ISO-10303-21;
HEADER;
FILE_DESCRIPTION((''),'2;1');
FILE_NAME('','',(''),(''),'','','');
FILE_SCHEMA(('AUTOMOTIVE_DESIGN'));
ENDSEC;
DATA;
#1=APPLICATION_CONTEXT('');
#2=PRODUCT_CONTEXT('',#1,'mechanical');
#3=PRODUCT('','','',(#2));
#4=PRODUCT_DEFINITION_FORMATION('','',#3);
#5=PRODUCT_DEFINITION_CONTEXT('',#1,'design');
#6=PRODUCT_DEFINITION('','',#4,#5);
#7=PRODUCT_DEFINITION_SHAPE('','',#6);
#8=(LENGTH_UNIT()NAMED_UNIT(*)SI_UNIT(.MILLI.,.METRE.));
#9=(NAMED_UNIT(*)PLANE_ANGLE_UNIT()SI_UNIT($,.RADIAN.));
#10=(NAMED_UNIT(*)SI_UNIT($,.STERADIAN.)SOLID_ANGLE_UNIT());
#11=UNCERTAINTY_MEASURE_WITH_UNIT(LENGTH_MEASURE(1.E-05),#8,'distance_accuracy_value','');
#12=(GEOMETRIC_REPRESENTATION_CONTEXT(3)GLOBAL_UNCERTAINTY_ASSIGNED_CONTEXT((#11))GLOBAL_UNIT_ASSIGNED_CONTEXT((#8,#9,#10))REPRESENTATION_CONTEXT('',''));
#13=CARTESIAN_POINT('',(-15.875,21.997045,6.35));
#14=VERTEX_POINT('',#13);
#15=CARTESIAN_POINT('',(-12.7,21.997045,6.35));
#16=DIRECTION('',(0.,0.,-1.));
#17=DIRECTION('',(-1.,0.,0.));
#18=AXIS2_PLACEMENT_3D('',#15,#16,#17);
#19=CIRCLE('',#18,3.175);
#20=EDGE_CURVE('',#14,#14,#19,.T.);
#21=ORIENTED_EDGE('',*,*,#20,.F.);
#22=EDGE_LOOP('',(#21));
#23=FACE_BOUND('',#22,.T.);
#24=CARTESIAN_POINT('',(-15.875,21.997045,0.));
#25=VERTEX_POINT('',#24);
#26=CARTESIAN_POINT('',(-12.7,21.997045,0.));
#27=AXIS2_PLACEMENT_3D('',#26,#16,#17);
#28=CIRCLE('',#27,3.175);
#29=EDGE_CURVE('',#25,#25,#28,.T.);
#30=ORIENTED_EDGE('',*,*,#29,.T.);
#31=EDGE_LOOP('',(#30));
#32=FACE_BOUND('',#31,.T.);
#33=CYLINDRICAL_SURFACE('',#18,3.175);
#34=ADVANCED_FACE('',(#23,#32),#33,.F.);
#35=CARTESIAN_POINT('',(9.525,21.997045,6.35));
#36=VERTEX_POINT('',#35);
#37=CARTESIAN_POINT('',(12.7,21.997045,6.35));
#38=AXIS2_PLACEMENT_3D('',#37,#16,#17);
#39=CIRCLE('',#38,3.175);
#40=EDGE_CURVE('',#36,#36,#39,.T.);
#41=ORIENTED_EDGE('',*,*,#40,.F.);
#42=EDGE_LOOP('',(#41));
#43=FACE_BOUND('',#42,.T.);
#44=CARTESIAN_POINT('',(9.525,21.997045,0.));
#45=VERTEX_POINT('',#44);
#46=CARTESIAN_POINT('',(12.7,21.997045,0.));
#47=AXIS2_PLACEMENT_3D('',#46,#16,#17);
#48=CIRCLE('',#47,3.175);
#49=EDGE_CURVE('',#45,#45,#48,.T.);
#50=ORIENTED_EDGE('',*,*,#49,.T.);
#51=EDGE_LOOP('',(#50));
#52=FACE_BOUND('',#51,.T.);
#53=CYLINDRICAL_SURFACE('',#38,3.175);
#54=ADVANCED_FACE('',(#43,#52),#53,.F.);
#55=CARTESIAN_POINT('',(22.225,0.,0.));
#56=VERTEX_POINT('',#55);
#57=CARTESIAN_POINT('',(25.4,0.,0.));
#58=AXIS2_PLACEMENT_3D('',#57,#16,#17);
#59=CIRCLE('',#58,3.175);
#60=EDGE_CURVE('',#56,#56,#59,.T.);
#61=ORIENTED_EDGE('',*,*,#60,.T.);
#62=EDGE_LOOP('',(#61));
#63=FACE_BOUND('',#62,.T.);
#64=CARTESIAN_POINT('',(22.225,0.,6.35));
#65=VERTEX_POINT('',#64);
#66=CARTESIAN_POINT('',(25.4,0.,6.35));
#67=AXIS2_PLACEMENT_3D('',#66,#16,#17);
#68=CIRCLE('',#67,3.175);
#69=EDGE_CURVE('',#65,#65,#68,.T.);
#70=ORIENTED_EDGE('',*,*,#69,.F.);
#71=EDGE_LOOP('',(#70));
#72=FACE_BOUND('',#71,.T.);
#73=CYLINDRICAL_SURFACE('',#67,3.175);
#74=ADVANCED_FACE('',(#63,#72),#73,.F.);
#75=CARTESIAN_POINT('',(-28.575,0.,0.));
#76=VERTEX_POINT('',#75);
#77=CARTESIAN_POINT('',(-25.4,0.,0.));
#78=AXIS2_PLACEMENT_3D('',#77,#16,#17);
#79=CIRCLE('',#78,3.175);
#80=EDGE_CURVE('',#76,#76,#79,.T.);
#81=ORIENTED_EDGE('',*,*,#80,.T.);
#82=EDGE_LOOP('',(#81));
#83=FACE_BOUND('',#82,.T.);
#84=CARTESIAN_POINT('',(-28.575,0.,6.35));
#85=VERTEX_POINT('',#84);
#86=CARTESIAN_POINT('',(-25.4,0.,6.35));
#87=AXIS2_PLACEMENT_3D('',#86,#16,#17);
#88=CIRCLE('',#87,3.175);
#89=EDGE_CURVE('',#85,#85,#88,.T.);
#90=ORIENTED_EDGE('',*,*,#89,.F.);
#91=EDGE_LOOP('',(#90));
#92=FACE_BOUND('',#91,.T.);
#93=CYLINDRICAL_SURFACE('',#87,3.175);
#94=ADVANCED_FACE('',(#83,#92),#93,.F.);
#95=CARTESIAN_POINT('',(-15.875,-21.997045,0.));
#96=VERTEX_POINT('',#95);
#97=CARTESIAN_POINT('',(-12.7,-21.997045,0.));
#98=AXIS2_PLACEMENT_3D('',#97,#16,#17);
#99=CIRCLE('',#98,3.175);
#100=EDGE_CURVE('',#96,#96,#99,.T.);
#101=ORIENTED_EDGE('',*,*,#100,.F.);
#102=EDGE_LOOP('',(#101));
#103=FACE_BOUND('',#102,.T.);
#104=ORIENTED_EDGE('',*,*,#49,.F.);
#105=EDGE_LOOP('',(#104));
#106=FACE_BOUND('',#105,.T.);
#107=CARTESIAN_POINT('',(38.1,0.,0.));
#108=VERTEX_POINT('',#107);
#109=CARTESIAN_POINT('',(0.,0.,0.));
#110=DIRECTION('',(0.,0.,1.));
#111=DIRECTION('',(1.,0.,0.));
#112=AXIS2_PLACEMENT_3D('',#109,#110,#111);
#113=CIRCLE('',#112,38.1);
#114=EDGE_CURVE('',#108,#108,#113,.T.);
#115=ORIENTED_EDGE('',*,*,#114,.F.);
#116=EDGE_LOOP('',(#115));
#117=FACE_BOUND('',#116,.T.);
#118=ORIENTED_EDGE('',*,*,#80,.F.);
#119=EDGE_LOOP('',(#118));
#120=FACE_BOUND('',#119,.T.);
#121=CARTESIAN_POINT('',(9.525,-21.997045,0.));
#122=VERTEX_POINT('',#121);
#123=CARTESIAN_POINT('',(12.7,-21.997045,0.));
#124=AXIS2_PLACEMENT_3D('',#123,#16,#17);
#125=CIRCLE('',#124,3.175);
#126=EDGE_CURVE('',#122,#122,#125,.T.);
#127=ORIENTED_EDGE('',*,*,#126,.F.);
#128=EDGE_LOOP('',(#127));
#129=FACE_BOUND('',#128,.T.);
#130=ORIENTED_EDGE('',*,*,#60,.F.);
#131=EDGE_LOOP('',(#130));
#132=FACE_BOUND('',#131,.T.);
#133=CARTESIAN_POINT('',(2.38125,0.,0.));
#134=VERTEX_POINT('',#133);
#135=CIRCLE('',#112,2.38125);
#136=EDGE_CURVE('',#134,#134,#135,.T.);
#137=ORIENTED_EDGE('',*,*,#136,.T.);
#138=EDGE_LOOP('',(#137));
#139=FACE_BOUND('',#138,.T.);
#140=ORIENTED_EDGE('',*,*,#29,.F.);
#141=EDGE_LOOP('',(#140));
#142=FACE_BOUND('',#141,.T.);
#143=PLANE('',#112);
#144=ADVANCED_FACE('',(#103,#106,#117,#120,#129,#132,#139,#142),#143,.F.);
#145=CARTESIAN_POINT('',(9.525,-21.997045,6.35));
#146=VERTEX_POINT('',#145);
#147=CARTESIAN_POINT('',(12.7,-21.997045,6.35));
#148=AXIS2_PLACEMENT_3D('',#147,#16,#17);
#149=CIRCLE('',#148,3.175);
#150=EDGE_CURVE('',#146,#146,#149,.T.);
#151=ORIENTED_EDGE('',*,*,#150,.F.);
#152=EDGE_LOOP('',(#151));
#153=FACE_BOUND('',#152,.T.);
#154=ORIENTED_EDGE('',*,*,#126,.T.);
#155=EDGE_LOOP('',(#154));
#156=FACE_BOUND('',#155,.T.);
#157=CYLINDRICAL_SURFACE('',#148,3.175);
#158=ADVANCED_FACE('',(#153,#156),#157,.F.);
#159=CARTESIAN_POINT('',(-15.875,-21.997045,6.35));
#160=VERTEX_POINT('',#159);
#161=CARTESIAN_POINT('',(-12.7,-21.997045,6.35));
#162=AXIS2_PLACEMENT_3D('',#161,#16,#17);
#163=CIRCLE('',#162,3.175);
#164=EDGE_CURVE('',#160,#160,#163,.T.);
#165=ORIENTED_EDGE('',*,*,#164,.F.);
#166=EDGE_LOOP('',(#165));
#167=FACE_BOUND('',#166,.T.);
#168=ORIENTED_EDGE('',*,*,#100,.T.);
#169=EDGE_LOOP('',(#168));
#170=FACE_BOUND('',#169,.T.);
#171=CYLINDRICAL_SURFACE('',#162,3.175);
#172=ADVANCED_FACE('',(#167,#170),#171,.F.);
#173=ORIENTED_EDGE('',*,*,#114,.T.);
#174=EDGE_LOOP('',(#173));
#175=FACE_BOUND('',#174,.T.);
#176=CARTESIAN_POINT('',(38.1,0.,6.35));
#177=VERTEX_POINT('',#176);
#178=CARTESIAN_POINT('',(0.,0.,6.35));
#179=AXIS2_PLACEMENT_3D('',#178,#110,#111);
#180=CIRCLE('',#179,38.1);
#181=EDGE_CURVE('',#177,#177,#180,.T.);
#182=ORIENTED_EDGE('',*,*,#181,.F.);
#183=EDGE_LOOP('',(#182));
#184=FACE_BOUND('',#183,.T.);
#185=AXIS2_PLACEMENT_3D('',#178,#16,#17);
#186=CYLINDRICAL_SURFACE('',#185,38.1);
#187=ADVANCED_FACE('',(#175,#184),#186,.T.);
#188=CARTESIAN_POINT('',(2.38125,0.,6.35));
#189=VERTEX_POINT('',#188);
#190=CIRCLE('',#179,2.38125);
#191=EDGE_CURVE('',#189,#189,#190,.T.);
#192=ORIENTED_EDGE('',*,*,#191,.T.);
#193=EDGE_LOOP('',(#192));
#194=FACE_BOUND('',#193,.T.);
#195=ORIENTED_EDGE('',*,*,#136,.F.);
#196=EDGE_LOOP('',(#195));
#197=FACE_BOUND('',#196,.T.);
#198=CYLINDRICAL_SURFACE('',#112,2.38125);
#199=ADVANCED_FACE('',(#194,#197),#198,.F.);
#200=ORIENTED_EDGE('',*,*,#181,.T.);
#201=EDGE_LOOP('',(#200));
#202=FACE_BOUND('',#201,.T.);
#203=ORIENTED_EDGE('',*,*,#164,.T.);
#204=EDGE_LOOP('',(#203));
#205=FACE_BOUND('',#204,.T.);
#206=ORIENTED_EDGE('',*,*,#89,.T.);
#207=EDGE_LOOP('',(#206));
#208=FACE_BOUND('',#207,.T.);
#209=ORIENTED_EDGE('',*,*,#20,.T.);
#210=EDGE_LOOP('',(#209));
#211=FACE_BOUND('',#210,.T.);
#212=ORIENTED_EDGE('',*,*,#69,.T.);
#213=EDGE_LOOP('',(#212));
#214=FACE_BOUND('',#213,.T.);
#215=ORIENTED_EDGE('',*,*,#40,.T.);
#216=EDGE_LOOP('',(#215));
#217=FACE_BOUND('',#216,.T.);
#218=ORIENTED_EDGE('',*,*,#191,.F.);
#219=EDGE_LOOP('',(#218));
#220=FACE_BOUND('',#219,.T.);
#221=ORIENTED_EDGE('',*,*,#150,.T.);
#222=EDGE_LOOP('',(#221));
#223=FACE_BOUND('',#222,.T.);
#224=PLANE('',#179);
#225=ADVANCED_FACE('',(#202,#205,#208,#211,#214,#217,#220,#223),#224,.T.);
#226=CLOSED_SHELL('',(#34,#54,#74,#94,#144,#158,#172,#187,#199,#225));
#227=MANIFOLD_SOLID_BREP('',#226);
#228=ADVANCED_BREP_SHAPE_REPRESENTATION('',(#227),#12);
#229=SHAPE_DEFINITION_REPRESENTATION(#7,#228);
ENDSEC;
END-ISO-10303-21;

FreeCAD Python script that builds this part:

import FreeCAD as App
import Part
import Sketcher
Q = App.Units.Quantity

doc = App.newDocument("Part")
body = doc.addObject("PartDesign::Body", "Body")

sketch1 = body.newObject("Sketcher::SketchObject", "Sketch")
sketch1.AttachmentSupport = (doc.getObject("XY_Plane"), [""])
sketch1.MapMode = "FlatFace"
sketch1.addGeometry(Part.Circle(App.Vector(0, 0, 0), App.Vector(0, 0, 1), 38), False)
sketch1.addConstraint(Sketcher.Constraint("Coincident", 0, 3, -1, 1))
sketch1.addConstraint(Sketcher.Constraint("Diameter", 0, Q("3 in")))
pad1 = body.newObject("PartDesign::Pad", "Pad")
pad1.Profile = sketch1
pad1.Length = Q("0.25 in")

sketch2 = body.newObject("Sketcher::SketchObject", "Sketch001")
sketch2.AttachmentSupport = (doc.getObject("XY_Plane"), [""])
sketch2.MapMode = "FlatFace"
sketch2.addGeometry(Part.Circle(App.Vector(25.4, 0, 0), App.Vector(0, 0, 1), 3.2), False)
sketch2.addGeometry(Part.Circle(App.Vector(12.7, 22, 0), App.Vector(0, 0, 1), 3.2), False)
sketch2.addGeometry(Part.Circle(App.Vector(-12.7, 22, 0), App.Vector(0, 0, 1), 3.2), False)
sketch2.addGeometry(Part.Circle(App.Vector(-25.4, 0, 0), App.Vector(0, 0, 1), 3.2), False)
sketch2.addGeometry(Part.Circle(App.Vector(-12.7, -22, 0), App.Vector(0, 0, 1), 3.2), False)
sketch2.addGeometry(Part.Circle(App.Vector(12.7, -22, 0), App.Vector(0, 0, 1), 3.2), False)
sketch2.addConstraint(Sketcher.Constraint("Equal", 0, 1))
sketch2.addConstraint(Sketcher.Constraint("Equal", 1, 2))
sketch2.addConstraint(Sketcher.Constraint("Equal", 2, 3))
sketch2.addConstraint(Sketcher.Constraint("Equal", 3, 4))
sketch2.addConstraint(Sketcher.Constraint("Equal", 4, 5))
sketch2.addConstraint(Sketcher.Constraint("Symmetric", 0, 3, 3, 3, -1, 1))
sketch2.addConstraint(Sketcher.Constraint("Symmetric", 1, 3, 4, 3, -1, 1))
sketch2.addConstraint(Sketcher.Constraint("Symmetric", 2, 3, 5, 3, -1, 1))
sketch2.addConstraint(Sketcher.Constraint("Symmetric", 1, 3, 2, 3, -2))
sketch2.addConstraint(Sketcher.Constraint("PointOnObject", 0, 3, -1))
sketch2.addConstraint(Sketcher.Constraint("Diameter", 0, Q("0.25 in")))
sketch2.addConstraint(Sketcher.Constraint("DistanceX", -1, 1, 0, 3, Q("1 in")))
sketch2.addConstraint(Sketcher.Constraint("DistanceX", 2, 3, 1, 3, Q("1 in")))
sketch2.addConstraint(Sketcher.Constraint("DistanceY", 4, 3, 2, 3, Q("43.994091 mm")))
pocket1 = body.newObject("PartDesign::Pocket", "Pocket")
pocket1.Profile = sketch2
pocket1.Type = "ThroughAll"
pocket1.Reversed = True

sketch3 = body.newObject("Sketcher::SketchObject", "Sketch002")
sketch3.AttachmentSupport = (doc.getObject("XY_Plane"), [""])
sketch3.MapMode = "FlatFace"
sketch3.AttachmentOffset = App.Placement(App.Vector(0, 0, 0.25 * 25.4), App.Rotation())
sketch3.addGeometry(Part.Circle(App.Vector(0, 0, 0), App.Vector(0, 0, 1), 2.4), False)
sketch3.addConstraint(Sketcher.Constraint("Coincident", 0, 3, -1, 1))
sketch3.addConstraint(Sketcher.Constraint("Diameter", 0, Q("0.1875 in")))
pocket2 = body.newObject("PartDesign::Pocket", "Pocket001")
pocket2.Profile = sketch3
pocket2.Type = "ThroughAll"

doc.recompute()
